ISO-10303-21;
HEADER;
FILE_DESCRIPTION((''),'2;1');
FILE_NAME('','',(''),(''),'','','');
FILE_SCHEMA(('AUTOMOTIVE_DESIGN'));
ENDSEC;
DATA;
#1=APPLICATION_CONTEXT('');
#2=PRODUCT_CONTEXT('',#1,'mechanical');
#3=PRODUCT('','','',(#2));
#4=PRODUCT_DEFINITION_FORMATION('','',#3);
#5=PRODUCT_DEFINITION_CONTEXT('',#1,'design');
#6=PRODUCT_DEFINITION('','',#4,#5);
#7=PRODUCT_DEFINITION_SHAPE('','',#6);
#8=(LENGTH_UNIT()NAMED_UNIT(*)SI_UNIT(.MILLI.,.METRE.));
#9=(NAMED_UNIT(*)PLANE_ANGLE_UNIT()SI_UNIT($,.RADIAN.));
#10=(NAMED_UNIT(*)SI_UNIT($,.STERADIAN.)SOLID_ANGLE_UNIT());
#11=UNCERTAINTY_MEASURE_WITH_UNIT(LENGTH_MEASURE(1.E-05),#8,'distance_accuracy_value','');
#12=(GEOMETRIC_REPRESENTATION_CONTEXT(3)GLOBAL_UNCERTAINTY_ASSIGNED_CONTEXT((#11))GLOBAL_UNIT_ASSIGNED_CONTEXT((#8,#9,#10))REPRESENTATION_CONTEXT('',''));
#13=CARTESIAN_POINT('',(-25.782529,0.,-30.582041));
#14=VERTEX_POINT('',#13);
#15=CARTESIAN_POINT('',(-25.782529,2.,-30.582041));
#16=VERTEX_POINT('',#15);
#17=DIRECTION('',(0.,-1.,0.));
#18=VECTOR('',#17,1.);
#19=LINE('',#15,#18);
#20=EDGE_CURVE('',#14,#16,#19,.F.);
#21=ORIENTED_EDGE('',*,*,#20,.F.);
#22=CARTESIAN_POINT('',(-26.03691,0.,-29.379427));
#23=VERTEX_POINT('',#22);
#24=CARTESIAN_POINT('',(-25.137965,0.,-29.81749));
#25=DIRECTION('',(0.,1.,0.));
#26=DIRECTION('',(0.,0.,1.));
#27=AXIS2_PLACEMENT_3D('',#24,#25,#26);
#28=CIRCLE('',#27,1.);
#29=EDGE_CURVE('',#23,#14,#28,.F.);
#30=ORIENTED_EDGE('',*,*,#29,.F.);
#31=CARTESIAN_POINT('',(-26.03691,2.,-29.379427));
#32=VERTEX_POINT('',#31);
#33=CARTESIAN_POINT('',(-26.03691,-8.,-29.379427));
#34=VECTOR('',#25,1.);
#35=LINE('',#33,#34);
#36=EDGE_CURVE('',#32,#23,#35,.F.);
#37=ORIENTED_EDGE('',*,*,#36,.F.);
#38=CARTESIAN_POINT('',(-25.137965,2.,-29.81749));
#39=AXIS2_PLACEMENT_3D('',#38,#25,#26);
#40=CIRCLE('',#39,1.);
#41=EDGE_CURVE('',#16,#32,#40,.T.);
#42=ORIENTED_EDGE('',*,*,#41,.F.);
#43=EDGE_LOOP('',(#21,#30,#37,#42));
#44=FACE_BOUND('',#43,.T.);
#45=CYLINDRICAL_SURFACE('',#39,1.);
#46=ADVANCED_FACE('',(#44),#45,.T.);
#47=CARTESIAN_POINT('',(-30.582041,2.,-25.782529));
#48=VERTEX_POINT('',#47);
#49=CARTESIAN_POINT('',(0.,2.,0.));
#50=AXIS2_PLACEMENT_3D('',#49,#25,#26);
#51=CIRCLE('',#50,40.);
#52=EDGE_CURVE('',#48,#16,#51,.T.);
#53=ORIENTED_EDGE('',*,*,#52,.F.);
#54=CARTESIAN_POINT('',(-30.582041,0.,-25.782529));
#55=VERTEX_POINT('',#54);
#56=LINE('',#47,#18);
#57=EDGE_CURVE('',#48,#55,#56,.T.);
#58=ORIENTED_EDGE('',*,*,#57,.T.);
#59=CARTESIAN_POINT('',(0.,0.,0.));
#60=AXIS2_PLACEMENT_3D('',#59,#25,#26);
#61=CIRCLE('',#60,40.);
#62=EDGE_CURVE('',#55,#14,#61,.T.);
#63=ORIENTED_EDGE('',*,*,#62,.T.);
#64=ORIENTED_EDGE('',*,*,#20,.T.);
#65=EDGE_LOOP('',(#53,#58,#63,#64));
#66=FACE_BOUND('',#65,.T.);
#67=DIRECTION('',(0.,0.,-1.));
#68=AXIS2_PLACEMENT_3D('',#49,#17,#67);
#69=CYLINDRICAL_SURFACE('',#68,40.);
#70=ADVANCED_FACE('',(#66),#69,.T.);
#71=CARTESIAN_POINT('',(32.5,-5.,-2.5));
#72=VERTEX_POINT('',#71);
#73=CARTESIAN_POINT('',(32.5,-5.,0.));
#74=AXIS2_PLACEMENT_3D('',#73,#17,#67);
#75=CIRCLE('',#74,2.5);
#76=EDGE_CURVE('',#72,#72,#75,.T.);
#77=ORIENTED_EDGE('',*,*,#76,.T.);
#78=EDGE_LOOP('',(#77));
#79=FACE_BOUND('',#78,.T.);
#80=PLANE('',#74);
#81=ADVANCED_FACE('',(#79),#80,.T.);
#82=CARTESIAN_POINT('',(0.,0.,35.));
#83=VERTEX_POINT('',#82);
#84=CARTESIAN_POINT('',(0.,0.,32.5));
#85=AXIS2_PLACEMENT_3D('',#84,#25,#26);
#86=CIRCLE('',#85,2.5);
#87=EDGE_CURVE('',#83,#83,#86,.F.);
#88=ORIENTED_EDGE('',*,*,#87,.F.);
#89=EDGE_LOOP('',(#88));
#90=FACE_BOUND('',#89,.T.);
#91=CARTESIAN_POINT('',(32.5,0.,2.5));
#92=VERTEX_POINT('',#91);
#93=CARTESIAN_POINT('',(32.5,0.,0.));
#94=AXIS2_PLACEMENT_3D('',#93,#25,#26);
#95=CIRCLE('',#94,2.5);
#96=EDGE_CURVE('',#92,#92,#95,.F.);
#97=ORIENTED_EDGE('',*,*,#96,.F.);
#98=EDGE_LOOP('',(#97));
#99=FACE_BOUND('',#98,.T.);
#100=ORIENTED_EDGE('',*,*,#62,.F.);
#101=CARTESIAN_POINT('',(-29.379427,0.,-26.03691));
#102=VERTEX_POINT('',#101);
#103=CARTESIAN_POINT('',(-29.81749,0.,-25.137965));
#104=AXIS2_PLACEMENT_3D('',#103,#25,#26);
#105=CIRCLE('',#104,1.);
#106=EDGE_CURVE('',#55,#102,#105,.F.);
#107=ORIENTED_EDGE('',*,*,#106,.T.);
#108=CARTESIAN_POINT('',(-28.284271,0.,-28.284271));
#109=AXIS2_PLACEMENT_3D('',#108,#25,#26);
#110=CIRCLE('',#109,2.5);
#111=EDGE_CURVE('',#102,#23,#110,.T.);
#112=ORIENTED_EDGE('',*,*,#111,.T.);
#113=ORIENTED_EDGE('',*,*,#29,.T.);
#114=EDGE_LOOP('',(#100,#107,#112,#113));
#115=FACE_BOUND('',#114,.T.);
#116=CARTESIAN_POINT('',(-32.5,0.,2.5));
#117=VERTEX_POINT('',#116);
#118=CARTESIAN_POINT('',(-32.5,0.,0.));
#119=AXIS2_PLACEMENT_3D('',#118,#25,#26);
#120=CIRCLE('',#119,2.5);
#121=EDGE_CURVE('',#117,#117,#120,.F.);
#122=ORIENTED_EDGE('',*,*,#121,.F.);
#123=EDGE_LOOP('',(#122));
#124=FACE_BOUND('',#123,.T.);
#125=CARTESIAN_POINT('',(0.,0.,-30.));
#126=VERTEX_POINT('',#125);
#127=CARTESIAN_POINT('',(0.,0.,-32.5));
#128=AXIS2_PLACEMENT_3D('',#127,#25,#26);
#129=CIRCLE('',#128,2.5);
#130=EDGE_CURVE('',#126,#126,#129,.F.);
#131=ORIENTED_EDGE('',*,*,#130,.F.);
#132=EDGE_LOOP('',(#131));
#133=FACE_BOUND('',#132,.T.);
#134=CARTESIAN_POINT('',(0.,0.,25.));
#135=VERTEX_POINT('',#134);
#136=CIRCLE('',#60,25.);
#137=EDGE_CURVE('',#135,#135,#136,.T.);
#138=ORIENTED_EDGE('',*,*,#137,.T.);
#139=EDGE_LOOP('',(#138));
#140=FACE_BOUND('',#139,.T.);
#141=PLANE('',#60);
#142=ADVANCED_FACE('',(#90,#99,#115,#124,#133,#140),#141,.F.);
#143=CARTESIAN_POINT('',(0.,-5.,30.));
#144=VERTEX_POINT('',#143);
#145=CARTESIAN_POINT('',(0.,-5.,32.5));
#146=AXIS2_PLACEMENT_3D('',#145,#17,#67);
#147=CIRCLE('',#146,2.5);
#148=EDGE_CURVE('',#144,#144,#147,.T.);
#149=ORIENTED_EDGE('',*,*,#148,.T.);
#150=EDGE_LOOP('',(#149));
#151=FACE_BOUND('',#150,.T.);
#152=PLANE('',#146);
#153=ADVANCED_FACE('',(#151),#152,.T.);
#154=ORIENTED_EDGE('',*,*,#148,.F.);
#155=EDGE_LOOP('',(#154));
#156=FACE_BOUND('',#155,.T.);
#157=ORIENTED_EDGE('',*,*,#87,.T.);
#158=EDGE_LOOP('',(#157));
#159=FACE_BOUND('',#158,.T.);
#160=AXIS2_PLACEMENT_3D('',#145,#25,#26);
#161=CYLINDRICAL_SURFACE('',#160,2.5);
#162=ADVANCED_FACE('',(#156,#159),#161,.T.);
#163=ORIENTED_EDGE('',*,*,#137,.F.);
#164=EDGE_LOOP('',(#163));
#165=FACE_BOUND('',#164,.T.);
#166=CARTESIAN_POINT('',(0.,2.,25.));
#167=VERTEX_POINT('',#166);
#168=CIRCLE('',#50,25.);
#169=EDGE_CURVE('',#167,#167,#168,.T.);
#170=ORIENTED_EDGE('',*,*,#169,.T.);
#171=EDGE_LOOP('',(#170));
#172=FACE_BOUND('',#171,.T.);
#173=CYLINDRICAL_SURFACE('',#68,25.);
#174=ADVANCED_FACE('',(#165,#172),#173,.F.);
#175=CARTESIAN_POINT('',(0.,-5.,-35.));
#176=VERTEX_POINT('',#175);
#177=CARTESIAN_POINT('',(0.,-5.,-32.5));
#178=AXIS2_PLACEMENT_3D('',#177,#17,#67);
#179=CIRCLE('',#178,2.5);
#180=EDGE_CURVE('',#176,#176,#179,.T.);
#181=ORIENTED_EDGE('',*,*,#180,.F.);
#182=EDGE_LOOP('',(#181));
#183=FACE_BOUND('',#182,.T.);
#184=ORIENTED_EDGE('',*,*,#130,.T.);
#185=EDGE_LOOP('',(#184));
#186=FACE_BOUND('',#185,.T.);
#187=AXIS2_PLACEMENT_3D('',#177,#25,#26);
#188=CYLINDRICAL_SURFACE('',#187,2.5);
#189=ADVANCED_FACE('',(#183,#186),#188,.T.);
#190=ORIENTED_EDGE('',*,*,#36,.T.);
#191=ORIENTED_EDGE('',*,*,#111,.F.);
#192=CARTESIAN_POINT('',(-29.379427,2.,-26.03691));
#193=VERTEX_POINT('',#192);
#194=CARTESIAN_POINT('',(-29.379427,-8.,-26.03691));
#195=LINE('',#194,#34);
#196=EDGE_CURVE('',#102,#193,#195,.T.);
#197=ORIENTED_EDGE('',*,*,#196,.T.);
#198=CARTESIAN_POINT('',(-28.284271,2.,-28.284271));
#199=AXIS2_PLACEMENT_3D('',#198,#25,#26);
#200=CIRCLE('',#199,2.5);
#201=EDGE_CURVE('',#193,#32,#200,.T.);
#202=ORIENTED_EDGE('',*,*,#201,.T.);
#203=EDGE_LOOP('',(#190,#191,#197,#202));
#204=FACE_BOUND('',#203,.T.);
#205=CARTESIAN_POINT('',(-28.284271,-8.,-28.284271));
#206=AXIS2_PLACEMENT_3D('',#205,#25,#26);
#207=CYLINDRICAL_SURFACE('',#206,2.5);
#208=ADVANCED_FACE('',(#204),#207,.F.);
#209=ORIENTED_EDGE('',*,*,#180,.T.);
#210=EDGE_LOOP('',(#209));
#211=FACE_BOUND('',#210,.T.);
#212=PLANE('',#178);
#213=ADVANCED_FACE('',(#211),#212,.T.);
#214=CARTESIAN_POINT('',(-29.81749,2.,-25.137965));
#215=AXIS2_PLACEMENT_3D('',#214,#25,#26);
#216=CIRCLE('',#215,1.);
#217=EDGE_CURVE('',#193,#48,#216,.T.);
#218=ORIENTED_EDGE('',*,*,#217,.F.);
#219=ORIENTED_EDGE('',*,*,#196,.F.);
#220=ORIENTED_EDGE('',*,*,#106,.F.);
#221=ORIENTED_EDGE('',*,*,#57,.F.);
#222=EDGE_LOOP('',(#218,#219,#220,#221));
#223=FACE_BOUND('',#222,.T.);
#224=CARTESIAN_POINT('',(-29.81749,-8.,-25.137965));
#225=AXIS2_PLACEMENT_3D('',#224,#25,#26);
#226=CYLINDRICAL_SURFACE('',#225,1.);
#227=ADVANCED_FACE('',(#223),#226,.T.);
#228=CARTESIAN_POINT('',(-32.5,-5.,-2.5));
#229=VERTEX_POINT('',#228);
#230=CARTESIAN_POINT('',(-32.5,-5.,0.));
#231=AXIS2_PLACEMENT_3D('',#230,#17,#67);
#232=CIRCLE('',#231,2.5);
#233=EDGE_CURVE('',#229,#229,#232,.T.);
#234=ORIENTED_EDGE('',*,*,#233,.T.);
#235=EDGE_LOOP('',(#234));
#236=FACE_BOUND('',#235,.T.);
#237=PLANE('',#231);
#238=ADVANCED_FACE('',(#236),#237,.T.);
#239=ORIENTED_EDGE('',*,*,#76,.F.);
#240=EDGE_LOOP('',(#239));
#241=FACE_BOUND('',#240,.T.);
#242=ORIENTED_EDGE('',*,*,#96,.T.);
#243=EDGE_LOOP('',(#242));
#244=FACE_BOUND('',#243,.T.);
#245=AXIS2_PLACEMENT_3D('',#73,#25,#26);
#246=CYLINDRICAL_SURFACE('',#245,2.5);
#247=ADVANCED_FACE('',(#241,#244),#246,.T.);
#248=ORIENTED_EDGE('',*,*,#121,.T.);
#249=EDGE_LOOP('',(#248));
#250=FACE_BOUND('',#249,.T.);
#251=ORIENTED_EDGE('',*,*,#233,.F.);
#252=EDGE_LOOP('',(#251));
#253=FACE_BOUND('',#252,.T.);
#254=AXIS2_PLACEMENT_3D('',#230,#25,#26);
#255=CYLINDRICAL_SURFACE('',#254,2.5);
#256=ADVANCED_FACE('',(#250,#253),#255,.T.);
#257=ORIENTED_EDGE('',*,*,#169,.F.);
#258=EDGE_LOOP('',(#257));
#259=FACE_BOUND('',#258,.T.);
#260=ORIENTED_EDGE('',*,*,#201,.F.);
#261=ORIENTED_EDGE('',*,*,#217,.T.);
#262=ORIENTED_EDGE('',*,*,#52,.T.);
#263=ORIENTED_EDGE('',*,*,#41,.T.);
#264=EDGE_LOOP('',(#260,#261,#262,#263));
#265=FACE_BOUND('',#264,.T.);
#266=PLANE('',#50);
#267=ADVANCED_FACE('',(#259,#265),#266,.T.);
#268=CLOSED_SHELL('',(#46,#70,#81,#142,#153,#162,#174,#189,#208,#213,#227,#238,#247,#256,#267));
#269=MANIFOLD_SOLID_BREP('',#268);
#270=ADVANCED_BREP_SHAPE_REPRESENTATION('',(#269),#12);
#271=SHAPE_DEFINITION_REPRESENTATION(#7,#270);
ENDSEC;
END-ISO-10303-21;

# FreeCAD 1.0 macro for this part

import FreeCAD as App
import Part
import Sketcher


def edges_at(feature, points):
    """Names of the edges that pass closest to the given points."""
    edges = feature.Shape.Edges
    near = lambda p: min(range(len(edges)), key=lambda i: edges[i].distToShape(Part.Vertex(*p))[0])
    return sorted({f"Edge{near(p) + 1}" for p in points})

doc = App.newDocument("Part")
body = doc.addObject("PartDesign::Body", "Body")

# Sketch on XZ plane
sketch1 = body.newObject("Sketcher::SketchObject", "Sketch")
sketch1.AttachmentSupport = (doc.getObject("XZ_Plane"), [""])
sketch1.MapMode = "FlatFace"
sketch1.addGeometry([
    Part.Circle(App.Vector(0, 0, 0), App.Vector(0, 0, 1), 40),
    Part.Circle(App.Vector(0, 0, 0), App.Vector(0, 0, 1), 25),
], False)
sketch1.addConstraint([
    Sketcher.Constraint("Coincident", 0, 3, -1, 1),
    Sketcher.Constraint("Coincident", 1, 3, -1, 1),
    Sketcher.Constraint("Diameter", 0, 80.0),
    Sketcher.Constraint("Diameter", 1, 50.0),
])
pad1 = body.newObject("PartDesign::Pad", "Pad")
pad1.Profile = sketch1
pad1.Length = 2
pad1.Reversed = True

# Sketch on XZ plane
sketch2 = body.newObject("Sketcher::SketchObject", "Sketch001")
sketch2.AttachmentSupport = (doc.getObject("XZ_Plane"), [""])
sketch2.MapMode = "FlatFace"
sketch2.addGeometry([
    Part.Circle(App.Vector(0, -32.5, 0), App.Vector(0, 0, 1), 2.5),
    Part.Circle(App.Vector(32.5, 0, 0), App.Vector(0, 0, 1), 2.5),
    Part.Circle(App.Vector(0, 32.5, 0), App.Vector(0, 0, 1), 2.5),
    Part.Circle(App.Vector(-32.5, 0, 0), App.Vector(0, 0, 1), 2.5),
], False)
sketch2.addConstraint([
    Sketcher.Constraint("Equal", 0, 1),
    Sketcher.Constraint("Equal", 1, 2),
    Sketcher.Constraint("Equal", 2, 3),
    Sketcher.Constraint("Symmetric", 0, 3, 2, 3, -1, 1),
    Sketcher.Constraint("Symmetric", 1, 3, 3, 3, -1, 1),
    Sketcher.Constraint("PointOnObject", 0, 3, -2),
    Sketcher.Constraint("PointOnObject", 1, 3, -1),
    Sketcher.Constraint("Diameter", 0, 5.0),
    Sketcher.Constraint("DistanceY", 0, 3, 2, 3, 65.0),
    Sketcher.Constraint("DistanceX", 3, 3, 1, 3, 65.0),
])
pad2 = body.newObject("PartDesign::Pad", "Pad001")
pad2.Profile = sketch2
pad2.Length = 5

# Sketch on XZ plane
sketch3 = body.newObject("Sketcher::SketchObject", "Sketch002")
sketch3.AttachmentSupport = (doc.getObject("XZ_Plane"), [""])
sketch3.MapMode = "FlatFace"
sketch3.AttachmentOffset = App.Placement(App.Vector(0, 0, -2), App.Rotation())
sketch3.addGeometry(Part.Circle(App.Vector(-28.3, -28.3, 0), App.Vector(0, 0, 1), 2.5), False)
sketch3.addConstraint([
    Sketcher.Constraint("Diameter", 0, 5.0),
    Sketcher.Constraint("DistanceX", 0, 3, -1, 1, 28.284271),
    Sketcher.Constraint("DistanceY", 0, 3, -1, 1, 28.284271),
])
pocket1 = body.newObject("PartDesign::Pocket", "Pocket")
pocket1.Profile = sketch3
pocket1.Length = 10
pocket1.Reversed = True
doc.recompute()

fillet = body.newObject("PartDesign::Fillet", "Fillet")
fillet.Base = (pocket1, edges_at(pocket1, [(-26.462, 1, -29.996)]))
fillet.Radius = 1
doc.recompute()

fillet2 = body.newObject("PartDesign::Fillet", "Fillet001")
fillet2.Base = (fillet, edges_at(fillet, [(-29.996, 1, -26.462)]))
fillet2.Radius = 1

doc.recompute()
